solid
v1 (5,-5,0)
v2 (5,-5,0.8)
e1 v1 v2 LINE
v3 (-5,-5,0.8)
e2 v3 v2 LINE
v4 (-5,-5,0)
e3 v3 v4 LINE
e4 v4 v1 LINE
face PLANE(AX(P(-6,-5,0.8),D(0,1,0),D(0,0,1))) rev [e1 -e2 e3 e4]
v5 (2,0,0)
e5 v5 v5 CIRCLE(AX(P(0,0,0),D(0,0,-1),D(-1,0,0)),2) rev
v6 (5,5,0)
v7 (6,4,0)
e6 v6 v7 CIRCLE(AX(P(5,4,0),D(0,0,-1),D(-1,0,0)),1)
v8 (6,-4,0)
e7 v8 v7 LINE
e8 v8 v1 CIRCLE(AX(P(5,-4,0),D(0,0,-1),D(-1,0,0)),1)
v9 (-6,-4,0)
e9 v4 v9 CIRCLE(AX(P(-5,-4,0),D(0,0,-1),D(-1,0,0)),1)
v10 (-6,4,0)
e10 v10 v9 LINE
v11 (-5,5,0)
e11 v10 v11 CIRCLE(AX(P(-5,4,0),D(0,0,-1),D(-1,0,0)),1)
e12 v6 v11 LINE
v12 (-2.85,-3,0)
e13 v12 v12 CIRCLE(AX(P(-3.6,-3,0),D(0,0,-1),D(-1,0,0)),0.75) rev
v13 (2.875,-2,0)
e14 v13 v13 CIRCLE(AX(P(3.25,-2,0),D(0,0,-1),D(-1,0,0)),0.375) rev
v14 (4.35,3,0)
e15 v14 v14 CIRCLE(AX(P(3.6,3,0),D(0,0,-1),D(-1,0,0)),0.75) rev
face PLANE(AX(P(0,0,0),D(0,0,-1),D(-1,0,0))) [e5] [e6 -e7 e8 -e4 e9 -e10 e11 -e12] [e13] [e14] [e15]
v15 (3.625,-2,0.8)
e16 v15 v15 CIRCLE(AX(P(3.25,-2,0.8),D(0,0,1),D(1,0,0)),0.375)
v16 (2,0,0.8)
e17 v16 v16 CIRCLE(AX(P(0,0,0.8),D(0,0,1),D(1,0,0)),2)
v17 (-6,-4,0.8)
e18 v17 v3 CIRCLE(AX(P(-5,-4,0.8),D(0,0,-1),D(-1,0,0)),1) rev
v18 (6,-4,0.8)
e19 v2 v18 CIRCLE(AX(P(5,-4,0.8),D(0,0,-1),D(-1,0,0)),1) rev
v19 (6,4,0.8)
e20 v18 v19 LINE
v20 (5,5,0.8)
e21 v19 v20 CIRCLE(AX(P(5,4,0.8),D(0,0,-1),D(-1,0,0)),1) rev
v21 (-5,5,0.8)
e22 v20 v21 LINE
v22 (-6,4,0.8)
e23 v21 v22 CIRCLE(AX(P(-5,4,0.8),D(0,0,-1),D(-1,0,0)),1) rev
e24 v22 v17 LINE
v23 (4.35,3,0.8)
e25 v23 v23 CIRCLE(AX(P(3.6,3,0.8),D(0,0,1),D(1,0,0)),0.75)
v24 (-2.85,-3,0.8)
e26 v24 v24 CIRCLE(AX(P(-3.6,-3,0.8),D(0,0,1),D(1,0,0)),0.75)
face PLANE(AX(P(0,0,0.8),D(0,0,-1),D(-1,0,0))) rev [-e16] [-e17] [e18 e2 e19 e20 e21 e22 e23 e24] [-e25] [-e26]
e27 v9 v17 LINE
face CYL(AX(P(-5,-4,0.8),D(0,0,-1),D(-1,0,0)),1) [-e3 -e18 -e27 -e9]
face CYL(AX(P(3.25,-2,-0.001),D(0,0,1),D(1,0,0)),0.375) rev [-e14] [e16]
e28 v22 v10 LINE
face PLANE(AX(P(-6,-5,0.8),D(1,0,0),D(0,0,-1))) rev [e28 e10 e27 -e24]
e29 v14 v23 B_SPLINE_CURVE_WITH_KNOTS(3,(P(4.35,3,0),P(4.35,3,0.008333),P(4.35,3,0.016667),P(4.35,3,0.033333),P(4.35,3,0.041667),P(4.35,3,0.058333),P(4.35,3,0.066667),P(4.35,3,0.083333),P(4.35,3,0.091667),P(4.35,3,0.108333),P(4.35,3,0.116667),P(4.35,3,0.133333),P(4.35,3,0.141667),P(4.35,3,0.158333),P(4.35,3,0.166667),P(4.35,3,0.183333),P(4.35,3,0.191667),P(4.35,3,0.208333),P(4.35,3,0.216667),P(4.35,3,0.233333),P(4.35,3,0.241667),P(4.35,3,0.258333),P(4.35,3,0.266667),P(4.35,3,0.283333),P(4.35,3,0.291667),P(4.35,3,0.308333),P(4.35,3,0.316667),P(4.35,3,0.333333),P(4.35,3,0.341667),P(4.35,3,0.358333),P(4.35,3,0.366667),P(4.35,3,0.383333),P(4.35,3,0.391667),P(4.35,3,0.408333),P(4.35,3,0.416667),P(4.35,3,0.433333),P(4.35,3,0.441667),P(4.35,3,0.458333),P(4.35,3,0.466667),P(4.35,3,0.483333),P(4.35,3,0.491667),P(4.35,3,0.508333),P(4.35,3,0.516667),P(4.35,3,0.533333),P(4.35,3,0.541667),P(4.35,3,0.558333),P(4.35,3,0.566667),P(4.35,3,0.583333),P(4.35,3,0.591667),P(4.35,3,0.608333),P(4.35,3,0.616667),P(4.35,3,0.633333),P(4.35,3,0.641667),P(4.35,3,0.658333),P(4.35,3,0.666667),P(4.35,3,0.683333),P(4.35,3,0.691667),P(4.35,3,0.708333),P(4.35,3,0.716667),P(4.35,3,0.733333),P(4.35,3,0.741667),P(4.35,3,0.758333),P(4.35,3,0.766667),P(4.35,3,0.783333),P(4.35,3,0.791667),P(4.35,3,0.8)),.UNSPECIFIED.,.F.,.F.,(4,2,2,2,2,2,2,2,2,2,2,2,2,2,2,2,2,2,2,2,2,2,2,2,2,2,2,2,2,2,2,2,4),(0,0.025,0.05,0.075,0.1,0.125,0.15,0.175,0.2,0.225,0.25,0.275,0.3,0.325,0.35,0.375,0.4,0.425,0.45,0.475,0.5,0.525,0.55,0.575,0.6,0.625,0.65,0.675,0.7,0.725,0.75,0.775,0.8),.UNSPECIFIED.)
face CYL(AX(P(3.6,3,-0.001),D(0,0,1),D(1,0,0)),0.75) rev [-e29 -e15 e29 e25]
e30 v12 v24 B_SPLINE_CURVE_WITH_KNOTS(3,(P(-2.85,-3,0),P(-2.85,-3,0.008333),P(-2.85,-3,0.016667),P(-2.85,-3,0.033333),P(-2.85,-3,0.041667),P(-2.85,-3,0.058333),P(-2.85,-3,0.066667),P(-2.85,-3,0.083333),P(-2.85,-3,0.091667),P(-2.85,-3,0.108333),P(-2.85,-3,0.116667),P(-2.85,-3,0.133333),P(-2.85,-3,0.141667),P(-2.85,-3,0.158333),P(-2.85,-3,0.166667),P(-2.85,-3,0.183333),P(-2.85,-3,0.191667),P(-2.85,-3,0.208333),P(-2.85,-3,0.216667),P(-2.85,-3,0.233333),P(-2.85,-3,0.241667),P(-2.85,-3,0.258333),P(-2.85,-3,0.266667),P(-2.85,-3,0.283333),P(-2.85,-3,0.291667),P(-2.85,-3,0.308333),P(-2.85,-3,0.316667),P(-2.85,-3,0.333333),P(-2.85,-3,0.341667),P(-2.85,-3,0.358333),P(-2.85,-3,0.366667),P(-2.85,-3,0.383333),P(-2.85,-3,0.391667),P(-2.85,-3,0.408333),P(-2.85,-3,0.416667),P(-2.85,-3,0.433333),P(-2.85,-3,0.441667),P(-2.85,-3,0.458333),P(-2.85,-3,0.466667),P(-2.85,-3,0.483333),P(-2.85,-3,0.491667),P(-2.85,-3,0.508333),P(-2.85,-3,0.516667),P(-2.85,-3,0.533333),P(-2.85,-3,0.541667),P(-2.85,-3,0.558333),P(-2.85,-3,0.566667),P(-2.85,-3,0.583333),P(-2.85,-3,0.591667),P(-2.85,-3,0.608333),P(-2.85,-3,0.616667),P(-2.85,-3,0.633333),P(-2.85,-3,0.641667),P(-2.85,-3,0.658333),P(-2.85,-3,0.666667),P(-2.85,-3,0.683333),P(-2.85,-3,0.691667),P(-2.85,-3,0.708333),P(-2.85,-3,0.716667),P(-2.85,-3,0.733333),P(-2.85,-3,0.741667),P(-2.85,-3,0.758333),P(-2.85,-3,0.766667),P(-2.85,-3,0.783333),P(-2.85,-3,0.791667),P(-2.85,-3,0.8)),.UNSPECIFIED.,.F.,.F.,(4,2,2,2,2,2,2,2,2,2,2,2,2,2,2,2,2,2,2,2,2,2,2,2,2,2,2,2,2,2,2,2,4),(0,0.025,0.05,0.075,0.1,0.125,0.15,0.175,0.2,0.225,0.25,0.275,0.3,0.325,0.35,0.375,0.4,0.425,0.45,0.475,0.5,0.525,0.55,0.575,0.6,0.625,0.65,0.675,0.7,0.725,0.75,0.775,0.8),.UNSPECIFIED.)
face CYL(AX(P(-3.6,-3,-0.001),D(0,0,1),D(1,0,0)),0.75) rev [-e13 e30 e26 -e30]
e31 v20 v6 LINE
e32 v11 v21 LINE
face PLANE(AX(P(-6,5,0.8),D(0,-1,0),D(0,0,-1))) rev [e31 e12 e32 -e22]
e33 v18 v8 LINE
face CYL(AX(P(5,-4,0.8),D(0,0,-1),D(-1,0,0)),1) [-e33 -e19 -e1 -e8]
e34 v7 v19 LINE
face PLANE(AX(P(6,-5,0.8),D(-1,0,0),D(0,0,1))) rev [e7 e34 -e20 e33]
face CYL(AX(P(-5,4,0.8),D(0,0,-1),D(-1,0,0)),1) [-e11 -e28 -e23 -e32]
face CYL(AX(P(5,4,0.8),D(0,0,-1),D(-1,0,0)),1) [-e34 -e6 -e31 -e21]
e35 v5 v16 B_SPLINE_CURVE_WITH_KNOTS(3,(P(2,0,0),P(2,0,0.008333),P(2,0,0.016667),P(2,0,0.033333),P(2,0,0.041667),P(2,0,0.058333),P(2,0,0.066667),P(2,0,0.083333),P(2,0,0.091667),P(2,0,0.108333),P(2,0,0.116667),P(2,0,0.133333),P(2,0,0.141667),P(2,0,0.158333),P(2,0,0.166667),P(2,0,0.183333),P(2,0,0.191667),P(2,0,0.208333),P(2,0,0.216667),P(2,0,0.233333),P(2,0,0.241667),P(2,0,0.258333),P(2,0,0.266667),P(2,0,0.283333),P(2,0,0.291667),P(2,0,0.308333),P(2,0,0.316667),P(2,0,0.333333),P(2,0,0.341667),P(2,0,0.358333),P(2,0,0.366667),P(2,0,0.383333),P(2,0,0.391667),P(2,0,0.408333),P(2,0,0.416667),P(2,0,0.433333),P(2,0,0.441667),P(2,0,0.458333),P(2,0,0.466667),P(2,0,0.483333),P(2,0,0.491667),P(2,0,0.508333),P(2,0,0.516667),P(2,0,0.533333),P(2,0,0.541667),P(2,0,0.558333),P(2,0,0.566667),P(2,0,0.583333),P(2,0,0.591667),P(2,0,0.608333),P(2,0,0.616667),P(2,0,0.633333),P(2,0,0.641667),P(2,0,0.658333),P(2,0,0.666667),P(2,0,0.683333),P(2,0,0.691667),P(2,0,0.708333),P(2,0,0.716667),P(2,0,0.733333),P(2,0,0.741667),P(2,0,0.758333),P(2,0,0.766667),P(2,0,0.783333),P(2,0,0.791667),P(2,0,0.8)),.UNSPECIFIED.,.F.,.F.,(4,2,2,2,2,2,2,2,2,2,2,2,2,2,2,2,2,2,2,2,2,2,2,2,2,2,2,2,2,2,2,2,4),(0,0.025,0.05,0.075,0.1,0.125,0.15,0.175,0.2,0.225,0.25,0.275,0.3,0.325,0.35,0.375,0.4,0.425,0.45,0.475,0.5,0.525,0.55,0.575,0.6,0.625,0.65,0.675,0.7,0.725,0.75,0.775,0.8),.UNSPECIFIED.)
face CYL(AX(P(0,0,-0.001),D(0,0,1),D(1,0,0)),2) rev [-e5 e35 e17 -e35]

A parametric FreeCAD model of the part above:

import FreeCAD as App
import Part
import Sketcher


def edges_at(feature, points):
    """Names of the edges that pass closest to the given points."""
    edges = feature.Shape.Edges
    near = lambda p: min(range(len(edges)), key=lambda i: edges[i].distToShape(Part.Vertex(*p))[0])
    return sorted({f"Edge{near(p) + 1}" for p in points})

doc = App.newDocument("Part")
params = doc.addObject("Spreadsheet::Sheet", "Params")
for row, (alias, value) in enumerate([
    ("sketch1_width", "12 mm"),
    ("sketch1_height", "10 mm"),
    ("pad1_length", "0.8 mm"),
    ("sketch2_diameter", "4 mm"),
    ("sketch3_diameter", "1.5 mm"),
    ("sketch4_diameter", "1.5 mm"),
    ("sketch5_diameter", "0.75 mm"),
    ("fillet_radius", "1 mm"),
], start=1):
    params.set(f"A{row}", alias)
    params.set(f"B{row}", "=" + value)
    params.setAlias(f"B{row}", alias)

body = doc.addObject("PartDesign::Body", "Body")

# Sketch on XY plane
sketch1 = body.newObject("Sketcher::SketchObject", "Sketch")
sketch1.AttachmentSupport = (doc.getObject("XY_Plane"), [""])
sketch1.MapMode = "FlatFace"
sketch1.addGeometry(Part.LineSegment(App.Vector(-6, 5, 0), App.Vector(-6, -5, 0)), False)
sketch1.addGeometry(Part.LineSegment(App.Vector(-6, -5, 0), App.Vector(6, -5, 0)), False)
sketch1.addGeometry(Part.LineSegment(App.Vector(6, -5, 0), App.Vector(6, 5, 0)), False)
sketch1.addGeometry(Part.LineSegment(App.Vector(6, 5, 0), App.Vector(-6, 5, 0)), False)
sketch1.addConstraint(Sketcher.Constraint("Coincident", 0, 2, 1, 1))
sketch1.addConstraint(Sketcher.Constraint("Coincident", 1, 2, 2, 1))
sketch1.addConstraint(Sketcher.Constraint("Coincident", 2, 2, 3, 1))
sketch1.addConstraint(Sketcher.Constraint("Coincident", 3, 2, 0, 1))
sketch1.addConstraint(Sketcher.Constraint("Vertical", 0))
sketch1.addConstraint(Sketcher.Constraint("Horizontal", 1))
sketch1.addConstraint(Sketcher.Constraint("Vertical", 2))
sketch1.addConstraint(Sketcher.Constraint("Horizontal", 3))
sketch1.addConstraint(Sketcher.Constraint("Symmetric", 0, 2, 2, 2, -1, 1))
sketch1.addConstraint(Sketcher.Constraint("DistanceX", 1, 1, 1, 2, 12.0))
sketch1.addConstraint(Sketcher.Constraint("DistanceY", 0, 2, 0, 1, 10.0))
sketch1.setExpression("Constraints[9]", "Params.sketch1_width")
sketch1.setExpression("Constraints[10]", "Params.sketch1_height")
pad1 = body.newObject("PartDesign::Pad", "Pad")
pad1.Profile = sketch1
pad1.setExpression("Length", "Params.pad1_length")

# Sketch on XY plane
sketch2 = body.newObject("Sketcher::SketchObject", "Sketch001")
sketch2.AttachmentSupport = (doc.getObject("XY_Plane"), [""])
sketch2.MapMode = "FlatFace"
sketch2.AttachmentOffset = App.Placement(App.Vector(0, 0, 0.8), App.Rotation())
sketch2.addGeometry(Part.Circle(App.Vector(0, 0, 0), App.Vector(0, 0, 1), 2), False)
sketch2.addConstraint(Sketcher.Constraint("Coincident", 0, 3, -1, 1))
sketch2.addConstraint(Sketcher.Constraint("Diameter", 0, 4.0))
sketch2.setExpression("Constraints[1]", "Params.sketch2_diameter")
pocket1 = body.newObject("PartDesign::Pocket", "Pocket")
pocket1.Profile = sketch2
pocket1.Type = "UpToFirst"

# Sketch on XY plane
sketch3 = body.newObject("Sketcher::SketchObject", "Sketch002")
sketch3.AttachmentSupport = (doc.getObject("XY_Plane"), [""])
sketch3.MapMode = "FlatFace"
sketch3.AttachmentOffset = App.Placement(App.Vector(0, 0, 0.8), App.Rotation())
sketch3.addGeometry(Part.Circle(App.Vector(-3.6, -3, 0), App.Vector(0, 0, 1), 0.8), False)
sketch3.addConstraint(Sketcher.Constraint("Diameter", 0, 1.5))
sketch3.addConstraint(Sketcher.Constraint("DistanceY", 0, 3, -1, 1, 3.0))
sketch3.addConstraint(Sketcher.Constraint("DistanceX", 0, 3, -1, 1, 3.6))
sketch3.setExpression("Constraints[0]", "Params.sketch3_diameter")
pocket2 = body.newObject("PartDesign::Pocket", "Pocket001")
pocket2.Profile = sketch3
pocket2.Type = "UpToFirst"

# Sketch on XY plane
sketch4 = body.newObject("Sketcher::SketchObject", "Sketch003")
sketch4.AttachmentSupport = (doc.getObject("XY_Plane"), [""])
sketch4.MapMode = "FlatFace"
sketch4.AttachmentOffset = App.Placement(App.Vector(0, 0, 0.8), App.Rotation())
sketch4.addGeometry(Part.Circle(App.Vector(3.6, 3, 0), App.Vector(0, 0, 1), 0.8), False)
sketch4.addConstraint(Sketcher.Constraint("Diameter", 0, 1.5))
sketch4.addConstraint(Sketcher.Constraint("DistanceY", -1, 1, 0, 3, 3.0))
sketch4.addConstraint(Sketcher.Constraint("DistanceX", -1, 1, 0, 3, 3.6))
sketch4.setExpression("Constraints[0]", "Params.sketch4_diameter")
pocket3 = body.newObject("PartDesign::Pocket", "Pocket002")
pocket3.Profile = sketch4
pocket3.Type = "UpToFirst"

# Sketch on XY plane
sketch5 = body.newObject("Sketcher::SketchObject", "Sketch004")
sketch5.AttachmentSupport = (doc.getObject("XY_Plane"), [""])
sketch5.MapMode = "FlatFace"
sketch5.AttachmentOffset = App.Placement(App.Vector(0, 0, 0.8), App.Rotation())
sketch5.addGeometry(Part.Circle(App.Vector(3.25, -2, 0), App.Vector(0, 0, 1), 0.38), False)
sketch5.addConstraint(Sketcher.Constraint("Diameter", 0, 0.75))
sketch5.addConstraint(Sketcher.Constraint("DistanceY", 0, 3, -1, 1, 2.0))
sketch5.addConstraint(Sketcher.Constraint("DistanceX", -1, 1, 0, 3, 3.25))
sketch5.setExpression("Constraints[0]", "Params.sketch5_diameter")
pocket4 = body.newObject("PartDesign::Pocket", "Pocket003")
pocket4.Profile = sketch5
pocket4.Type = "UpToFirst"
doc.recompute()

fillet = body.newObject("PartDesign::Fillet", "Fillet")
fillet.Base = (pocket4, edges_at(pocket4, [
    (6, -5, 0.4),
    (-6, -5, 0.4),
    (-6, 5, 0.4),
    (6, 5, 0.4),
]))
fillet.setExpression("Radius", "Params.fillet_radius")

doc.recompute()
